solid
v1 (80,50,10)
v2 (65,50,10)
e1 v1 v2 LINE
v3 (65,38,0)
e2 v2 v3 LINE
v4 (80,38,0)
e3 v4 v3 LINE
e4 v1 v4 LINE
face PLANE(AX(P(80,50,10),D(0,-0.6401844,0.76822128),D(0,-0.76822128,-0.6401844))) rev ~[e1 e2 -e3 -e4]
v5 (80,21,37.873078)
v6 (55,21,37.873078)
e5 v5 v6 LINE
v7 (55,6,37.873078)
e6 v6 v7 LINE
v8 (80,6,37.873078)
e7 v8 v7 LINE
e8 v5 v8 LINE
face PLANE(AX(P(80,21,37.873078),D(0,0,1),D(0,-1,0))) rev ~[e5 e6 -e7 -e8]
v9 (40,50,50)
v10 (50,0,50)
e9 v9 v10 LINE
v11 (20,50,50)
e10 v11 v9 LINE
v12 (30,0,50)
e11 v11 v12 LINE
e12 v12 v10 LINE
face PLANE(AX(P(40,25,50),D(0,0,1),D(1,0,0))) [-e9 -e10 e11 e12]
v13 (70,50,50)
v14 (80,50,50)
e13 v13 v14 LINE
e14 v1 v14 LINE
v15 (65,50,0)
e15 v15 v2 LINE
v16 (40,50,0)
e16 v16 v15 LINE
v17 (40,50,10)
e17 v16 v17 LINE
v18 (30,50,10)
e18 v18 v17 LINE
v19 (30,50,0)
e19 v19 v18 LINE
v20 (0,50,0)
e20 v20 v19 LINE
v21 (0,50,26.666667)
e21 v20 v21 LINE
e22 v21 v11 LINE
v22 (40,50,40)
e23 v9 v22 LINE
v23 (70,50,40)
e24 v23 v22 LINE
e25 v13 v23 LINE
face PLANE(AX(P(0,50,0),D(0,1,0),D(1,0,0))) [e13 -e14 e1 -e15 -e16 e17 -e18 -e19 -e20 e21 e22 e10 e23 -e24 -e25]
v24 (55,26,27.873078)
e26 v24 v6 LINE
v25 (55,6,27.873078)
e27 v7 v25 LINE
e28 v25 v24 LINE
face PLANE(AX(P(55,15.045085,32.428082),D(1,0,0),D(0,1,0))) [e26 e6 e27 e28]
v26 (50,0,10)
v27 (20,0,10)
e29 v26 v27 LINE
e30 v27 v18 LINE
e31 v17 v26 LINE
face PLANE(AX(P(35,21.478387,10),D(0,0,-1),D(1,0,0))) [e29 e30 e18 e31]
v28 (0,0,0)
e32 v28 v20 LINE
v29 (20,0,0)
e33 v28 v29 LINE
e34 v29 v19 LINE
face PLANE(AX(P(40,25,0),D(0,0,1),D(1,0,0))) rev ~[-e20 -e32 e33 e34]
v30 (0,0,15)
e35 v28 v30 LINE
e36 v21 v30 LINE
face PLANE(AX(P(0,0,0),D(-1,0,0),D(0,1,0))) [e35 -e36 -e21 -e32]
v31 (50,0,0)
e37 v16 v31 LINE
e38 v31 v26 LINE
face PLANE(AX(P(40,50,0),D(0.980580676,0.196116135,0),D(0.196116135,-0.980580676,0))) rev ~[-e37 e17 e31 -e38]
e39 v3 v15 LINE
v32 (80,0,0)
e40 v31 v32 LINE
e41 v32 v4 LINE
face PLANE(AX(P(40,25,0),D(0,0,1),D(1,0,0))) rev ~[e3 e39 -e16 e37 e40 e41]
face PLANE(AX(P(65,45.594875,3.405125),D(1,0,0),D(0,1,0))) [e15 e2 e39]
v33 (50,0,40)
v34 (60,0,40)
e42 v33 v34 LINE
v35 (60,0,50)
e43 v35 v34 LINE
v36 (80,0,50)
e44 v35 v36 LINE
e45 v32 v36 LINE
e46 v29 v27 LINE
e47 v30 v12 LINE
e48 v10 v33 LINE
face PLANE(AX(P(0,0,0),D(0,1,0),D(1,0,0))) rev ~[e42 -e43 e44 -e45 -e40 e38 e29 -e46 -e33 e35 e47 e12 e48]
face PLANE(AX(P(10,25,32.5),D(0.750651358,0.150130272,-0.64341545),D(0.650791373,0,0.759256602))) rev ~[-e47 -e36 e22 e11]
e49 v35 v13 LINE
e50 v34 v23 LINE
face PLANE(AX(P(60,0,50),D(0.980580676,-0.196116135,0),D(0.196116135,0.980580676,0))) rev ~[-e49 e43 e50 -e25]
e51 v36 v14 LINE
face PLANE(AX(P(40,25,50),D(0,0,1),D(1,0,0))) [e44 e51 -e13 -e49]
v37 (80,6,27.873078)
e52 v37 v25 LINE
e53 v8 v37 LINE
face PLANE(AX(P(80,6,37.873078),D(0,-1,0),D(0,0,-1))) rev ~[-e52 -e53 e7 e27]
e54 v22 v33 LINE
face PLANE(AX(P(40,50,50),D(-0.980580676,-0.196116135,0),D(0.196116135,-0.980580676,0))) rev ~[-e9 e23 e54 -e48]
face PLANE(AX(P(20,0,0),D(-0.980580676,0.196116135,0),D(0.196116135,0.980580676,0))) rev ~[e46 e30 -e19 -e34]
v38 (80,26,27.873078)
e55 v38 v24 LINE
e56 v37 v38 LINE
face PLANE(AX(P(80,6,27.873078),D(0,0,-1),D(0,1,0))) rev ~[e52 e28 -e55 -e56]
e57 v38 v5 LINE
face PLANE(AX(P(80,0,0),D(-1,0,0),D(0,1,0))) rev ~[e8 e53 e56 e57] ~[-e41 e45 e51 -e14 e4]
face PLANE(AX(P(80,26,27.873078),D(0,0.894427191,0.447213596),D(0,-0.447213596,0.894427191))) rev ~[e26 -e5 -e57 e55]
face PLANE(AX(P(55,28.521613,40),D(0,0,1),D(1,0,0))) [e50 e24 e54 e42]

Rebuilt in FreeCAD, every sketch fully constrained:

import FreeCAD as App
import Part
import Sketcher
from FreeCAD import Vector
Q = App.Units.Quantity

doc = App.newDocument("Part")
body = doc.addObject("PartDesign::Body", "Body")

sketch1 = body.newObject("Sketcher::SketchObject", "Sketch")
sketch1.AttachmentSupport = (doc.getObject("XY_Plane"), [""])
sketch1.MapMode = "FlatFace"
sketch1.addGeometry([
    Part.LineSegment(Vector(0, 50, 0), Vector(0, 0, 0)),
    Part.LineSegment(Vector(0, 0, 0), Vector(80, 0, 0)),
    Part.LineSegment(Vector(80, 0, 0), Vector(80, 50, 0)),
    Part.LineSegment(Vector(80, 50, 0), Vector(0, 50, 0)),
], False)
sketch1.addConstraint([
    Sketcher.Constraint("Coincident", 0, 2, 1, 1),
    Sketcher.Constraint("Coincident", 1, 2, 2, 1),
    Sketcher.Constraint("Coincident", 2, 2, 3, 1),
    Sketcher.Constraint("Coincident", 3, 2, 0, 1),
    Sketcher.Constraint("Vertical", 0),
    Sketcher.Constraint("Horizontal", 1),
    Sketcher.Constraint("Vertical", 2),
    Sketcher.Constraint("Horizontal", 3),
    Sketcher.Constraint("Coincident", 0, 2, -1, 1),
    Sketcher.Constraint("DistanceX", 1, 1, 1, 2, Q("80 mm")),
    Sketcher.Constraint("DistanceY", 0, 2, 0, 1, Q("50 mm")),
])
pad1 = body.newObject("PartDesign::Pad", "Pad")
pad1.Profile = sketch1
pad1.Length = 50

sketch2 = body.newObject("Sketcher::SketchObject", "Sketch001")
sketch2.AttachmentSupport = (doc.getObject("XY_Plane"), [""])
sketch2.MapMode = "FlatFace"
sketch2.addGeometry([
    Part.LineSegment(Vector(50, 0, 0), Vector(20, 0, 0)),
    Part.LineSegment(Vector(20, 0, 0), Vector(30, 50, 0)),
    Part.LineSegment(Vector(30, 50, 0), Vector(40, 50, 0)),
    Part.LineSegment(Vector(40, 50, 0), Vector(50, 0, 0)),
], False)
sketch2.addConstraint([
    Sketcher.Constraint("Coincident", 0, 2, 1, 1),
    Sketcher.Constraint("Coincident", 1, 2, 2, 1),
    Sketcher.Constraint("Coincident", 2, 2, 3, 1),
    Sketcher.Constraint("Coincident", 3, 2, 0, 1),
    Sketcher.Constraint("Horizontal", 0),
    Sketcher.Constraint("Horizontal", 2),
    Sketcher.Constraint("PointOnObject", 0, 2, -1),
    Sketcher.Constraint("Equal", 1, 3),
    Sketcher.Constraint("DistanceX", 0, 2, 0, 1, Q("30 mm")),
    Sketcher.Constraint("DistanceX", 2, 1, 2, 2, Q("10 mm")),
    Sketcher.Constraint("DistanceX", -1, 1, 0, 2, Q("20 mm")),
    Sketcher.Constraint("DistanceY", -1, 1, 1, 2, Q("50 mm")),
])
pocket1 = body.newObject("PartDesign::Pocket", "Pocket")
pocket1.Profile = sketch2
pocket1.Length = 10
pocket1.Reversed = True

sketch3 = body.newObject("Sketcher::SketchObject", "Sketch002")
sketch3.AttachmentSupport = (doc.getObject("XZ_Plane"), [""])
sketch3.MapMode = "FlatFace"
sketch3.addGeometry([
    Part.LineSegment(Vector(0, 15, 0), Vector(30, 50, 0)),
    Part.LineSegment(Vector(30, 50, 0), Vector(0, 50, 0)),
    Part.LineSegment(Vector(0, 50, 0), Vector(0, 15, 0)),
], False)
sketch3.addConstraint([
    Sketcher.Constraint("Coincident", 0, 2, 1, 1),
    Sketcher.Constraint("Coincident", 1, 2, 2, 1),
    Sketcher.Constraint("Coincident", 2, 2, 0, 1),
    Sketcher.Constraint("Horizontal", 1),
    Sketcher.Constraint("Vertical", 2),
    Sketcher.Constraint("PointOnObject", 1, 2, -2),
    Sketcher.Constraint("DistanceX", 1, 2, 1, 1, Q("30 mm")),
    Sketcher.Constraint("DistanceY", 2, 2, 2, 1, Q("35 mm")),
    Sketcher.Constraint("DistanceY", -1, 1, 0, 2, Q("50 mm")),
])

sketch4 = body.newObject("Sketcher::SketchObject", "Sketch003")
sketch4.Placement = App.Placement(Vector(28.846154, 5.769231, 0), App.Rotation(Vector(0.196116135, -0.980580676, 0), Vector(0, 0, 1.000000001), Vector(-0.980580676, -0.196116135, 0), "ZXY"))
sketch4.addGeometry(Part.LineSegment(Vector(-45, 50, 0), Vector(6, 50, 0)), False)
sketch4.addConstraint([
    Sketcher.Constraint("Horizontal", 0),
    Sketcher.Constraint("DistanceY", -1, 1, 0, 1, Q("50 mm")),
    Sketcher.Constraint("DistanceX", 0, 1, 0, 2, Q("50.990195 mm")),
    Sketcher.Constraint("DistanceX", 0, 1, -1, 1, Q("45.106711 mm")),
])
doc.recompute()

subtractivepipe = body.newObject("PartDesign::SubtractivePipe", "SubtractivePipe")
subtractivepipe.Profile = sketch3
subtractivepipe.Spine = (sketch4, ["Edge1"])

sketch5 = body.newObject("Sketcher::SketchObject", "Sketch004")
sketch5.AttachmentSupport = (doc.getObject("XY_Plane"), [""])
sketch5.MapMode = "FlatFace"
sketch5.AttachmentOffset = App.Placement(Vector(0, 0, 50), App.Rotation())
sketch5.addGeometry([
    Part.LineSegment(Vector(70, 50, 0), Vector(40, 50, 0)),
    Part.LineSegment(Vector(40, 50, 0), Vector(50, 0, 0)),
    Part.LineSegment(Vector(50, 0, 0), Vector(60, 0, 0)),
    Part.LineSegment(Vector(60, 0, 0), Vector(70, 50, 0)),
], False)
sketch5.addConstraint([
    Sketcher.Constraint("Coincident", 0, 2, 1, 1),
    Sketcher.Constraint("Coincident", 1, 2, 2, 1),
    Sketcher.Constraint("Coincident", 2, 2, 3, 1),
    Sketcher.Constraint("Coincident", 3, 2, 0, 1),
    Sketcher.Constraint("Horizontal", 0),
    Sketcher.Constraint("Horizontal", 2),
    Sketcher.Constraint("PointOnObject", 1, 2, -1),
    Sketcher.Constraint("Equal", 1, 3),
    Sketcher.Constraint("DistanceX", 0, 2, 0, 1, Q("30 mm")),
    Sketcher.Constraint("DistanceX", 2, 1, 2, 2, Q("10 mm")),
    Sketcher.Constraint("DistanceX", -1, 1, 0, 2, Q("40 mm")),
    Sketcher.Constraint("DistanceY", -1, 1, 0, 2, Q("50 mm")),
])
pocket2 = body.newObject("PartDesign::Pocket", "Pocket001")
pocket2.Profile = sketch5
pocket2.Length = 10

sketch6 = body.newObject("Sketcher::SketchObject", "Sketch005")
sketch6.AttachmentSupport = (doc.getObject("YZ_Plane"), [""])
sketch6.MapMode = "FlatFace"
sketch6.AttachmentOffset = App.Placement(Vector(0, 0, 80), App.Rotation())
sketch6.addGeometry([
    Part.LineSegment(Vector(50, 0, 0), Vector(50, 10, 0)),
    Part.LineSegment(Vector(50, 10, 0), Vector(38, 0, 0)),
    Part.LineSegment(Vector(38, 0, 0), Vector(50, 0, 0)),
], False)
sketch6.addConstraint([
    Sketcher.Constraint("Coincident", 0, 2, 1, 1),
    Sketcher.Constraint("Coincident", 1, 2, 2, 1),
    Sketcher.Constraint("Coincident", 2, 2, 0, 1),
    Sketcher.Constraint("Vertical", 0),
    Sketcher.Constraint("Horizontal", 2),
    Sketcher.Constraint("PointOnObject", 1, 2, -1),
    Sketcher.Constraint("DistanceX", 2, 1, 2, 2, Q("12 mm")),
    Sketcher.Constraint("DistanceY", 0, 1, 0, 2, Q("10 mm")),
    Sketcher.Constraint("DistanceX", -1, 1, 0, 2, Q("50 mm")),
])
pocket3 = body.newObject("PartDesign::Pocket", "Pocket002")
pocket3.Profile = sketch6
pocket3.Length = 15

sketch7 = body.newObject("Sketcher::SketchObject", "Sketch006")
sketch7.AttachmentSupport = (doc.getObject("YZ_Plane"), [""])
sketch7.MapMode = "FlatFace"
sketch7.AttachmentOffset = App.Placement(Vector(0, 0, 80), App.Rotation())
sketch7.addGeometry([
    Part.LineSegment(Vector(21, 38, 0), Vector(6, 38, 0)),
    Part.LineSegment(Vector(6, 38, 0), Vector(6, 28, 0)),
    Part.LineSegment(Vector(6, 28, 0), Vector(26, 28, 0)),
    Part.LineSegment(Vector(26, 28, 0), Vector(21, 38, 0)),
], False)
sketch7.addConstraint([
    Sketcher.Constraint("Coincident", 0, 2, 1, 1),
    Sketcher.Constraint("Coincident", 1, 2, 2, 1),
    Sketcher.Constraint("Coincident", 2, 2, 3, 1),
    Sketcher.Constraint("Coincident", 3, 2, 0, 1),
    Sketcher.Constraint("Horizontal", 0),
    Sketcher.Constraint("Vertical", 1),
    Sketcher.Constraint("Horizontal", 2),
    Sketcher.Constraint("DistanceX", 0, 2, 0, 1, Q("15 mm")),
    Sketcher.Constraint("DistanceX", 2, 1, 2, 2, Q("20 mm")),
    Sketcher.Constraint("DistanceY", 1, 2, 1, 1, Q("10 mm")),
    Sketcher.Constraint("DistanceX", -1, 1, 0, 2, Q("6 mm")),
    Sketcher.Constraint("DistanceY", -1, 1, 0, 2, Q("37.873078 mm")),
])
pocket4 = body.newObject("PartDesign::Pocket", "Pocket003")
pocket4.Profile = sketch7
pocket4.Length = 25

doc.recompute()
